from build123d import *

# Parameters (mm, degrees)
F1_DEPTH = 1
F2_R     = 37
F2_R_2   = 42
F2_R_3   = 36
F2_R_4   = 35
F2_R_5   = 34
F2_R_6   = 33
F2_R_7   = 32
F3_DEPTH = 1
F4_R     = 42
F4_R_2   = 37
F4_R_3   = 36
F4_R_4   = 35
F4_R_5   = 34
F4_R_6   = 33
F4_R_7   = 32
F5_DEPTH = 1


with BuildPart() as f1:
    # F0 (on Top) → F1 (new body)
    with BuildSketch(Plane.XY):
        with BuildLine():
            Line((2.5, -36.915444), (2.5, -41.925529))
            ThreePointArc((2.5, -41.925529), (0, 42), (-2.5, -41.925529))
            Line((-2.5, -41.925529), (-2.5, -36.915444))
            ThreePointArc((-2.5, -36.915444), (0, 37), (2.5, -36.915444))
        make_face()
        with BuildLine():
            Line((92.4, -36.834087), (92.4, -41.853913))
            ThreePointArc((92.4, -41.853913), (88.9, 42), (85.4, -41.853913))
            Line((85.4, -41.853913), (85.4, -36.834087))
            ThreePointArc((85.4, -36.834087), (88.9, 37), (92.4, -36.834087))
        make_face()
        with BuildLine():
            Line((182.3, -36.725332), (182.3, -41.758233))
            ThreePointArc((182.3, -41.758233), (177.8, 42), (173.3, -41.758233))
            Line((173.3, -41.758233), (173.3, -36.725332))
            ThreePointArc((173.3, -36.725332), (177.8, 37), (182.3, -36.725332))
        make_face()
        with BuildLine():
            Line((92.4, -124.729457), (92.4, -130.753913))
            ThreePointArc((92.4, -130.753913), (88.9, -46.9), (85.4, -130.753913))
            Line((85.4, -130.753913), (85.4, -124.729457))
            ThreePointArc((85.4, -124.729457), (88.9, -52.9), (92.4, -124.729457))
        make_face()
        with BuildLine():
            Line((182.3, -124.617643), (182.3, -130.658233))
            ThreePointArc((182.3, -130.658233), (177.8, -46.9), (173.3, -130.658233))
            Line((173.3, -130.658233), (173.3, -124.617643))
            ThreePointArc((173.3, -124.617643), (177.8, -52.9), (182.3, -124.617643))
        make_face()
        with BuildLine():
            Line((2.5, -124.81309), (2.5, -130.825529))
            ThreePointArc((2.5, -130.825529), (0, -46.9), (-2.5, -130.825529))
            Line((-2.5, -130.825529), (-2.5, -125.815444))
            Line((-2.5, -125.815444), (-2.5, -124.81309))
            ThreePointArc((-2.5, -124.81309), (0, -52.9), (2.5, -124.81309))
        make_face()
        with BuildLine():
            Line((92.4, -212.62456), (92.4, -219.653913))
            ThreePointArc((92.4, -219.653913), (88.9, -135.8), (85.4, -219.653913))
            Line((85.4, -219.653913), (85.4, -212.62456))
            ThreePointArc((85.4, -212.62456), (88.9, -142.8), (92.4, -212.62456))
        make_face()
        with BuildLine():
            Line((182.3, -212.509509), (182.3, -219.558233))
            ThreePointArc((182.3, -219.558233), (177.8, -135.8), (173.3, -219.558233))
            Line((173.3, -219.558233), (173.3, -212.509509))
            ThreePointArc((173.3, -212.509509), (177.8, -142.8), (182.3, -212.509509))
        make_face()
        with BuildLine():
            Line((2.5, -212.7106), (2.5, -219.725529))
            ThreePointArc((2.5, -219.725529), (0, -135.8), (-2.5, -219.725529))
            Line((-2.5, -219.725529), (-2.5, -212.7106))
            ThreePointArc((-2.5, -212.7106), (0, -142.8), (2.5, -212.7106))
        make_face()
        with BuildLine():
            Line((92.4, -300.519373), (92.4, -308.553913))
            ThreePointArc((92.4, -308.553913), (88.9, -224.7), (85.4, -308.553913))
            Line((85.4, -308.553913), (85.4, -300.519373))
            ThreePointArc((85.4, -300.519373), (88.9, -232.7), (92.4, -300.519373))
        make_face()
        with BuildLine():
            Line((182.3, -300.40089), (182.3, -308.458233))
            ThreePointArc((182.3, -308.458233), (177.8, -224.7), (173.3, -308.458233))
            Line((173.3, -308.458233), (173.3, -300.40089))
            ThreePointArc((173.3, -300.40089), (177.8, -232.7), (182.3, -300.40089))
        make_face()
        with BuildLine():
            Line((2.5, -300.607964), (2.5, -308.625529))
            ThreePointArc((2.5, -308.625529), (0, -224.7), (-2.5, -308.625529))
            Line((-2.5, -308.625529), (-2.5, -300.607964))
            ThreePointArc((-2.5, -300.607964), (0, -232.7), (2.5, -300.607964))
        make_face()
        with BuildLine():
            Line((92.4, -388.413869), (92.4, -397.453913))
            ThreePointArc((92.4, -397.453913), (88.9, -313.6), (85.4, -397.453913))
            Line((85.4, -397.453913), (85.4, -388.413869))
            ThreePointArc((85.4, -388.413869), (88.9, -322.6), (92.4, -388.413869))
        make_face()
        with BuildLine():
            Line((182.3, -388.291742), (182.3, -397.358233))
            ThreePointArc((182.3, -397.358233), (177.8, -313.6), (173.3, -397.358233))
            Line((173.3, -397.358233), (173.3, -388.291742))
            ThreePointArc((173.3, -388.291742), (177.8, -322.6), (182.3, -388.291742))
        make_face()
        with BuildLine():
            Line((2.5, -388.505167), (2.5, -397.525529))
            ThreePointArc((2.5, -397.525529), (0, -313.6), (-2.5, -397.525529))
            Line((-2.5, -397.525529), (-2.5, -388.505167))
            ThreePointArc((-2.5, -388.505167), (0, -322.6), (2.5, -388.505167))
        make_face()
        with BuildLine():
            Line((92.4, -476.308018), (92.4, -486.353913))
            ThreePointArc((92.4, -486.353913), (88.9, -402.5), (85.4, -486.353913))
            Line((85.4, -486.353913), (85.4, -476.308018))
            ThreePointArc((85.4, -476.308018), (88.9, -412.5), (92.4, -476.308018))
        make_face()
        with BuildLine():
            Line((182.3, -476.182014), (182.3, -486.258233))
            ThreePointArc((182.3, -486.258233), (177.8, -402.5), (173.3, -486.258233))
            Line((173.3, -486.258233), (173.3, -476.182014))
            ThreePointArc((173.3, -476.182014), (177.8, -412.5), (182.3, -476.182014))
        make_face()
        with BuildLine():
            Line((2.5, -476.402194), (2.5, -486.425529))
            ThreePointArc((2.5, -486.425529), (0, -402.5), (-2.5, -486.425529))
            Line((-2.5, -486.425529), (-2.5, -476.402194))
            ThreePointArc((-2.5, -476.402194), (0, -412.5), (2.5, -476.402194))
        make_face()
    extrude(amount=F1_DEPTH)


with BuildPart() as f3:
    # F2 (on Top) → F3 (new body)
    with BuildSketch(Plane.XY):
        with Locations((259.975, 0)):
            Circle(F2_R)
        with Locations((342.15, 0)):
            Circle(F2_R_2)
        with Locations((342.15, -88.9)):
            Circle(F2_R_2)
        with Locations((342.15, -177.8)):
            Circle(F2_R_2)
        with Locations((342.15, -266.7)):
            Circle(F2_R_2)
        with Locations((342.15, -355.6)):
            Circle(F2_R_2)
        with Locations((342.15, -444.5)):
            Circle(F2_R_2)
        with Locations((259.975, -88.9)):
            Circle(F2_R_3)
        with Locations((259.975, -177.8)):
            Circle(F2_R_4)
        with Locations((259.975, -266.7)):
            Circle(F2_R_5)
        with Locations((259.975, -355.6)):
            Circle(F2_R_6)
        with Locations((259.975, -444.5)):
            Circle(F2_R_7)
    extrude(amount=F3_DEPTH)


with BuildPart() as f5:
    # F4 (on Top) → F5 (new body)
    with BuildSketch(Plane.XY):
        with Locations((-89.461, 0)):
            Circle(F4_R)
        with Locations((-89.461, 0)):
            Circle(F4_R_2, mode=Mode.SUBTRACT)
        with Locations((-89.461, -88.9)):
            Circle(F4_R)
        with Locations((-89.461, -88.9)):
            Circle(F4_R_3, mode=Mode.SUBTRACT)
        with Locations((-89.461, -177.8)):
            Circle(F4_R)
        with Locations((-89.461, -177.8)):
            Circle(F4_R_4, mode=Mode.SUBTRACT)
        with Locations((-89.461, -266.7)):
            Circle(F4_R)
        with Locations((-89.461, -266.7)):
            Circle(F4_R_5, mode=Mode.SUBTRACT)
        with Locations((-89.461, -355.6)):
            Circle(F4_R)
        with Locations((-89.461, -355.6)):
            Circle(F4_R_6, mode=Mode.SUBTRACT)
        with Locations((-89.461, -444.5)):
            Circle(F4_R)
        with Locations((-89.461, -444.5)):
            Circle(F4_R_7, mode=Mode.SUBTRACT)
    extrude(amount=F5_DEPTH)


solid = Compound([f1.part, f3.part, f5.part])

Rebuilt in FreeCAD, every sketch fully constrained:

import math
import FreeCAD as App
import Part
import Sketcher

V = App.Vector

doc = App.newDocument("Part")
params = doc.addObject("Spreadsheet::Sheet", "Params")
for row, (alias, value) in enumerate([
    ("sketch1_radius", "42 mm"),
    ("sketch1_radius2", "37 mm"),
    ("sketch1_radius3", "36 mm"),
    ("sketch1_radius4", "35 mm"),
    ("sketch1_radius5", "34 mm"),
    ("pad1_length", "1 mm"),
    ("sketch2_diameter", "74 mm"),
    ("sketch2_diameter2", "84 mm"),
    ("sketch2_diameter3", "72 mm"),
    ("sketch2_diameter4", "70 mm"),
    ("sketch2_diameter5", "68 mm"),
    ("pad2_length", "1 mm"),
    ("sketch3_diameter", "84 mm"),
    ("sketch3_diameter2", "74 mm"),
    ("sketch3_diameter3", "72 mm"),
    ("sketch3_diameter4", "70 mm"),
    ("sketch3_diameter5", "68 mm"),
    ("pad3_length", "1 mm"),
], start=1):
    params.set(f"A{row}", alias)
    params.set(f"B{row}", "=" + value)
    params.setAlias(f"B{row}", alias)

body = doc.addObject("PartDesign::Body", "Body")
body.AllowCompound = True

# Sketch on XY plane
sketch1 = body.newObject("Sketcher::SketchObject", "Sketch")
sketch1.AttachmentSupport = (doc.getObject("XY_Plane"), [""])
sketch1.MapMode = "FlatFace"
sketch1.addGeometry(Part.LineSegment(V(2, -37, 0), V(2, -42, 0)), False)
sketch1.addGeometry(Part.ArcOfCircle(Part.Circle(V(0, 0, 0), V(0, 0, 1), 42), math.radians(-87), math.radians(267)), False)
sketch1.addGeometry(Part.LineSegment(V(-2, -42, 0), V(-2, -37, 0)), False)
sketch1.addGeometry(Part.ArcOfCircle(Part.Circle(V(0, 0, 0), V(0, 0, 1), 37), math.radians(-86), math.radians(266)), False)
sketch1.addGeometry(Part.LineSegment(V(92, -37, 0), V(92, -42, 0)), False)
sketch1.addGeometry(Part.ArcOfCircle(Part.Circle(V(89, 0, 0), V(0, 0, 1), 42), math.radians(-85), math.radians(265)), False)
sketch1.addGeometry(Part.LineSegment(V(85, -42, 0), V(85, -37, 0)), False)
sketch1.addGeometry(Part.ArcOfCircle(Part.Circle(V(89, 0, 0), V(0, 0, 1), 37), math.radians(-85), math.radians(265)), False)
sketch1.addGeometry(Part.LineSegment(V(182, -37, 0), V(182, -42, 0)), False)
sketch1.addGeometry(Part.ArcOfCircle(Part.Circle(V(178, 0, 0), V(0, 0, 1), 42), math.radians(-84), math.radians(264)), False)
sketch1.addGeometry(Part.LineSegment(V(173, -42, 0), V(173, -37, 0)), False)
sketch1.addGeometry(Part.ArcOfCircle(Part.Circle(V(178, 0, 0), V(0, 0, 1), 37), math.radians(-83), math.radians(263)), False)
sketch1.addGeometry(Part.LineSegment(V(92, -125, 0), V(92, -131, 0)), False)
sketch1.addGeometry(Part.ArcOfCircle(Part.Circle(V(89, -89, 0), V(0, 0, 1), 42), math.radians(-85), math.radians(265)), False)
sketch1.addGeometry(Part.LineSegment(V(85, -131, 0), V(85, -125, 0)), False)
sketch1.addGeometry(Part.ArcOfCircle(Part.Circle(V(89, -89, 0), V(0, 0, 1), 36), math.radians(-84), math.radians(264)), False)
sketch1.addGeometry(Part.LineSegment(V(182, -125, 0), V(182, -131, 0)), False)
sketch1.addGeometry(Part.ArcOfCircle(Part.Circle(V(178, -89, 0), V(0, 0, 1), 42), math.radians(-84), math.radians(264)), False)
sketch1.addGeometry(Part.LineSegment(V(173, -131, 0), V(173, -125, 0)), False)
sketch1.addGeometry(Part.ArcOfCircle(Part.Circle(V(178, -89, 0), V(0, 0, 1), 36), math.radians(-83), math.radians(263)), False)
sketch1.addGeometry(Part.LineSegment(V(2, -125, 0), V(2, -131, 0)), False)
sketch1.addGeometry(Part.ArcOfCircle(Part.Circle(V(0, -89, 0), V(0, 0, 1), 42), math.radians(-87), math.radians(267)), False)
sketch1.addGeometry(Part.LineSegment(V(-2, -131, 0), V(-2, -125, 0)), False)
sketch1.addGeometry(Part.ArcOfCircle(Part.Circle(V(0, -89, 0), V(0, 0, 1), 36), math.radians(-86), math.radians(266)), False)
sketch1.addGeometry(Part.LineSegment(V(92, -213, 0), V(92, -220, 0)), False)
sketch1.addGeometry(Part.ArcOfCircle(Part.Circle(V(89, -178, 0), V(0, 0, 1), 42), math.radians(-85), math.radians(265)), False)
sketch1.addGeometry(Part.LineSegment(V(85, -220, 0), V(85, -213, 0)), False)
sketch1.addGeometry(Part.ArcOfCircle(Part.Circle(V(89, -178, 0), V(0, 0, 1), 35), math.radians(-84), math.radians(264)), False)
sketch1.addGeometry(Part.LineSegment(V(182, -213, 0), V(182, -220, 0)), False)
sketch1.addGeometry(Part.ArcOfCircle(Part.Circle(V(178, -178, 0), V(0, 0, 1), 42), math.radians(-84), math.radians(264)), False)
sketch1.addGeometry(Part.LineSegment(V(173, -220, 0), V(173, -213, 0)), False)
sketch1.addGeometry(Part.ArcOfCircle(Part.Circle(V(178, -178, 0), V(0, 0, 1), 35), math.radians(-83), math.radians(263)), False)
sketch1.addGeometry(Part.LineSegment(V(2, -213, 0), V(2, -220, 0)), False)
sketch1.addGeometry(Part.ArcOfCircle(Part.Circle(V(0, -178, 0), V(0, 0, 1), 42), math.radians(-87), math.radians(267)), False)
sketch1.addGeometry(Part.LineSegment(V(-2, -220, 0), V(-2, -213, 0)), False)
sketch1.addGeometry(Part.ArcOfCircle(Part.Circle(V(0, -178, 0), V(0, 0, 1), 35), math.radians(-86), math.radians(266)), False)
sketch1.addGeometry(Part.LineSegment(V(92, -301, 0), V(92, -309, 0)), False)
sketch1.addGeometry(Part.ArcOfCircle(Part.Circle(V(89, -267, 0), V(0, 0, 1), 42), math.radians(-85), math.radians(265)), False)
sketch1.addGeometry(Part.LineSegment(V(85, -309, 0), V(85, -301, 0)), False)
sketch1.addGeometry(Part.ArcOfCircle(Part.Circle(V(89, -267, 0), V(0, 0, 1), 34), math.radians(-84), math.radians(264)), False)
sketch1.addGeometry(Part.LineSegment(V(182, -300, 0), V(182, -308, 0)), False)
sketch1.addGeometry(Part.ArcOfCircle(Part.Circle(V(178, -267, 0), V(0, 0, 1), 42), math.radians(-84), math.radians(264)), False)
sketch1.addGeometry(Part.LineSegment(V(173, -308, 0), V(173, -300, 0)), False)
sketch1.addGeometry(Part.ArcOfCircle(Part.Circle(V(178, -267, 0), V(0, 0, 1), 34), math.radians(-82), math.radians(262)), False)
sketch1.addGeometry(Part.LineSegment(V(2, -301, 0), V(2, -309, 0)), False)
sketch1.addGeometry(Part.ArcOfCircle(Part.Circle(V(0, -267, 0), V(0, 0, 1), 42), math.radians(-87), math.radians(267)), False)
sketch1.addGeometry(Part.LineSegment(V(-2, -309, 0), V(-2, -301, 0)), False)
sketch1.addGeometry(Part.ArcOfCircle(Part.Circle(V(0, -267, 0), V(0, 0, 1), 34), math.radians(-86), math.radians(266)), False)
sketch1.addGeometry(Part.LineSegment(V(92, -388, 0), V(92, -397, 0)), False)
sketch1.addGeometry(Part.ArcOfCircle(Part.Circle(V(89, -356, 0), V(0, 0, 1), 42), math.radians(-85), math.radians(265)), False)
sketch1.addGeometry(Part.LineSegment(V(85, -397, 0), V(85, -388, 0)), False)
sketch1.addGeometry(Part.ArcOfCircle(Part.Circle(V(89, -356, 0), V(0, 0, 1), 33), math.radians(-84), math.radians(264)), False)
sketch1.addGeometry(Part.LineSegment(V(182, -388, 0), V(182, -397, 0)), False)
sketch1.addGeometry(Part.ArcOfCircle(Part.Circle(V(178, -356, 0), V(0, 0, 1), 42), math.radians(-84), math.radians(264)), False)
sketch1.addGeometry(Part.LineSegment(V(173, -397, 0), V(173, -388, 0)), False)
sketch1.addGeometry(Part.ArcOfCircle(Part.Circle(V(178, -356, 0), V(0, 0, 1), 33), math.radians(-82), math.radians(262)), False)
sketch1.addGeometry(Part.LineSegment(V(2, -389, 0), V(2, -398, 0)), False)
sketch1.addGeometry(Part.ArcOfCircle(Part.Circle(V(0, -356, 0), V(0, 0, 1), 42), math.radians(-87), math.radians(267)), False)
sketch1.addGeometry(Part.LineSegment(V(-2, -398, 0), V(-2, -389, 0)), False)
sketch1.addGeometry(Part.ArcOfCircle(Part.Circle(V(0, -356, 0), V(0, 0, 1), 33), math.radians(-86), math.radians(266)), False)
sketch1.addGeometry(Part.LineSegment(V(92, -476, 0), V(92, -486, 0)), False)
sketch1.addGeometry(Part.ArcOfCircle(Part.Circle(V(89, -445, 0), V(0, 0, 1), 42), math.radians(-85), math.radians(265)), False)
sketch1.addGeometry(Part.LineSegment(V(85, -486, 0), V(85, -476, 0)), False)
sketch1.addGeometry(Part.ArcOfCircle(Part.Circle(V(89, -445, 0), V(0, 0, 1), 32), math.radians(-84), math.radians(264)), False)
sketch1.addGeometry(Part.LineSegment(V(182, -476, 0), V(182, -486, 0)), False)
sketch1.addGeometry(Part.ArcOfCircle(Part.Circle(V(178, -445, 0), V(0, 0, 1), 42), math.radians(-84), math.radians(264)), False)
sketch1.addGeometry(Part.LineSegment(V(173, -486, 0), V(173, -476, 0)), False)
sketch1.addGeometry(Part.ArcOfCircle(Part.Circle(V(178, -445, 0), V(0, 0, 1), 32), math.radians(-82), math.radians(262)), False)
sketch1.addGeometry(Part.LineSegment(V(2, -476, 0), V(2, -486, 0)), False)
sketch1.addGeometry(Part.ArcOfCircle(Part.Circle(V(0, -444, 0), V(0, 0, 1), 42), math.radians(-87), math.radians(267)), False)
sketch1.addGeometry(Part.LineSegment(V(-2, -486, 0), V(-2, -476, 0)), False)
sketch1.addGeometry(Part.ArcOfCircle(Part.Circle(V(0, -444, 0), V(0, 0, 1), 32), math.radians(-86), math.radians(266)), False)
sketch1.addConstraint(Sketcher.Constraint("Coincident", 0, 2, 1, 1))
sketch1.addConstraint(Sketcher.Constraint("Coincident", 1, 2, 2, 1))
sketch1.addConstraint(Sketcher.Constraint("Coincident", 2, 2, 3, 2))
sketch1.addConstraint(Sketcher.Constraint("Coincident", 3, 1, 0, 1))
sketch1.addConstraint(Sketcher.Constraint("Coincident", 4, 2, 5, 1))
sketch1.addConstraint(Sketcher.Constraint("Coincident", 5, 2, 6, 1))
sketch1.addConstraint(Sketcher.Constraint("Coincident", 6, 2, 7, 2))
sketch1.addConstraint(Sketcher.Constraint("Coincident", 7, 1, 4, 1))
sketch1.addConstraint(Sketcher.Constraint("Coincident", 8, 2, 9, 1))
sketch1.addConstraint(Sketcher.Constraint("Coincident", 9, 2, 10, 1))
sketch1.addConstraint(Sketcher.Constraint("Coincident", 10, 2, 11, 2))
sketch1.addConstraint(Sketcher.Constraint("Coincident", 11, 1, 8, 1))
sketch1.addConstraint(Sketcher.Constraint("Coincident", 12, 2, 13, 1))
sketch1.addConstraint(Sketcher.Constraint("Coincident", 13, 2, 14, 1))
sketch1.addConstraint(Sketcher.Constraint("Coincident", 14, 2, 15, 2))
sketch1.addConstraint(Sketcher.Constraint("Coincident", 15, 1, 12, 1))
sketch1.addConstraint(Sketcher.Constraint("Coincident", 16, 2, 17, 1))
sketch1.addConstraint(Sketcher.Constraint("Coincident", 17, 2, 18, 1))
sketch1.addConstraint(Sketcher.Constraint("Coincident", 18, 2, 19, 2))
sketch1.addConstraint(Sketcher.Constraint("Coincident", 19, 1, 16, 1))
sketch1.addConstraint(Sketcher.Constraint("Coincident", 20, 2, 21, 1))
sketch1.addConstraint(Sketcher.Constraint("Coincident", 21, 2, 22, 1))
sketch1.addConstraint(Sketcher.Constraint("Coincident", 22, 2, 23, 2))
sketch1.addConstraint(Sketcher.Constraint("Coincident", 23, 1, 20, 1))
sketch1.addConstraint(Sketcher.Constraint("Coincident", 24, 2, 25, 1))
sketch1.addConstraint(Sketcher.Constraint("Coincident", 25, 2, 26, 1))
sketch1.addConstraint(Sketcher.Constraint("Coincident", 26, 2, 27, 2))
sketch1.addConstraint(Sketcher.Constraint("Coincident", 27, 1, 24, 1))
sketch1.addConstraint(Sketcher.Constraint("Coincident", 28, 2, 29, 1))
sketch1.addConstraint(Sketcher.Constraint("Coincident", 29, 2, 30, 1))
sketch1.addConstraint(Sketcher.Constraint("Coincident", 30, 2, 31, 2))
sketch1.addConstraint(Sketcher.Constraint("Coincident", 31, 1, 28, 1))
sketch1.addConstraint(Sketcher.Constraint("Coincident", 32, 2, 33, 1))
sketch1.addConstraint(Sketcher.Constraint("Coincident", 33, 2, 34, 1))
sketch1.addConstraint(Sketcher.Constraint("Coincident", 34, 2, 35, 2))
sketch1.addConstraint(Sketcher.Constraint("Coincident", 35, 1, 32, 1))
sketch1.addConstraint(Sketcher.Constraint("Coincident", 36, 2, 37, 1))
sketch1.addConstraint(Sketcher.Constraint("Coincident", 37, 2, 38, 1))
sketch1.addConstraint(Sketcher.Constraint("Coincident", 38, 2, 39, 2))
sketch1.addConstraint(Sketcher.Constraint("Coincident", 39, 1, 36, 1))
sketch1.addConstraint(Sketcher.Constraint("Coincident", 40, 2, 41, 1))
sketch1.addConstraint(Sketcher.Constraint("Coincident", 41, 2, 42, 1))
sketch1.addConstraint(Sketcher.Constraint("Coincident", 42, 2, 43, 2))
sketch1.addConstraint(Sketcher.Constraint("Coincident", 43, 1, 40, 1))
sketch1.addConstraint(Sketcher.Constraint("Coincident", 44, 2, 45, 1))
sketch1.addConstraint(Sketcher.Constraint("Coincident", 45, 2, 46, 1))
sketch1.addConstraint(Sketcher.Constraint("Coincident", 46, 2, 47, 2))
sketch1.addConstraint(Sketcher.Constraint("Coincident", 47, 1, 44, 1))
sketch1.addConstraint(Sketcher.Constraint("Coincident", 48, 2, 49, 1))
sketch1.addConstraint(Sketcher.Constraint("Coincident", 49, 2, 50, 1))
sketch1.addConstraint(Sketcher.Constraint("Coincident", 50, 2, 51, 2))
sketch1.addConstraint(Sketcher.Constraint("Coincident", 51, 1, 48, 1))
sketch1.addConstraint(Sketcher.Constraint("Coincident", 52, 2, 53, 1))
sketch1.addConstraint(Sketcher.Constraint("Coincident", 53, 2, 54, 1))
sketch1.addConstraint(Sketcher.Constraint("Coincident", 54, 2, 55, 2))
sketch1.addConstraint(Sketcher.Constraint("Coincident", 55, 1, 52, 1))
sketch1.addConstraint(Sketcher.Constraint("Coincident", 56, 2, 57, 1))
sketch1.addConstraint(Sketcher.Constraint("Coincident", 57, 2, 58, 1))
sketch1.addConstraint(Sketcher.Constraint("Coincident", 58, 2, 59, 2))
sketch1.addConstraint(Sketcher.Constraint("Coincident", 59, 1, 56, 1))
sketch1.addConstraint(Sketcher.Constraint("Coincident", 60, 2, 61, 1))
sketch1.addConstraint(Sketcher.Constraint("Coincident", 61, 2, 62, 1))
sketch1.addConstraint(Sketcher.Constraint("Coincident", 62, 2, 63, 2))
sketch1.addConstraint(Sketcher.Constraint("Coincident", 63, 1, 60, 1))
sketch1.addConstraint(Sketcher.Constraint("Coincident", 64, 2, 65, 1))
sketch1.addConstraint(Sketcher.Constraint("Coincident", 65, 2, 66, 1))
sketch1.addConstraint(Sketcher.Constraint("Coincident", 66, 2, 67, 2))
sketch1.addConstraint(Sketcher.Constraint("Coincident", 67, 1, 64, 1))
sketch1.addConstraint(Sketcher.Constraint("Coincident", 68, 2, 69, 1))
sketch1.addConstraint(Sketcher.Constraint("Coincident", 69, 2, 70, 1))
sketch1.addConstraint(Sketcher.Constraint("Coincident", 70, 2, 71, 2))
sketch1.addConstraint(Sketcher.Constraint("Coincident", 71, 1, 68, 1))
sketch1.addConstraint(Sketcher.Constraint("Vertical", 0))
sketch1.addConstraint(Sketcher.Constraint("Vertical", 2))
sketch1.addConstraint(Sketcher.Constraint("Vertical", 4))
sketch1.addConstraint(Sketcher.Constraint("Vertical", 6))
sketch1.addConstraint(Sketcher.Constraint("Vertical", 8))
sketch1.addConstraint(Sketcher.Constraint("Vertical", 10))
sketch1.addConstraint(Sketcher.Constraint("Vertical", 12))
sketch1.addConstraint(Sketcher.Constraint("Vertical", 14))
sketch1.addConstraint(Sketcher.Constraint("Vertical", 16))
sketch1.addConstraint(Sketcher.Constraint("Vertical", 18))
sketch1.addConstraint(Sketcher.Constraint("Vertical", 20))
sketch1.addConstraint(Sketcher.Constraint("Vertical", 22))
sketch1.addConstraint(Sketcher.Constraint("Vertical", 24))
sketch1.addConstraint(Sketcher.Constraint("Vertical", 26))
sketch1.addConstraint(Sketcher.Constraint("Vertical", 28))
sketch1.addConstraint(Sketcher.Constraint("Vertical", 30))
sketch1.addConstraint(Sketcher.Constraint("Vertical", 32))
sketch1.addConstraint(Sketcher.Constraint("Vertical", 34))
sketch1.addConstraint(Sketcher.Constraint("Vertical", 36))
sketch1.addConstraint(Sketcher.Constraint("Vertical", 38))
sketch1.addConstraint(Sketcher.Constraint("Vertical", 40))
sketch1.addConstraint(Sketcher.Constraint("Vertical", 42))
sketch1.addConstraint(Sketcher.Constraint("Vertical", 44))
sketch1.addConstraint(Sketcher.Constraint("Vertical", 46))
sketch1.addConstraint(Sketcher.Constraint("Vertical", 48))
sketch1.addConstraint(Sketcher.Constraint("Vertical", 50))
sketch1.addConstraint(Sketcher.Constraint("Vertical", 52))
sketch1.addConstraint(Sketcher.Constraint("Vertical", 54))
sketch1.addConstraint(Sketcher.Constraint("Vertical", 56))
sketch1.addConstraint(Sketcher.Constraint("Vertical", 58))
sketch1.addConstraint(Sketcher.Constraint("Vertical", 60))
sketch1.addConstraint(Sketcher.Constraint("Vertical", 62))
sketch1.addConstraint(Sketcher.Constraint("Vertical", 64))
sketch1.addConstraint(Sketcher.Constraint("Vertical", 66))
sketch1.addConstraint(Sketcher.Constraint("Vertical", 68))
sketch1.addConstraint(Sketcher.Constraint("Vertical", 70))
sketch1.addConstraint(Sketcher.Constraint("Coincident", 1, 3, -1, 1))
sketch1.addConstraint(Sketcher.Constraint("Coincident", 3, 3, -1, 1))
sketch1.addConstraint(Sketcher.Constraint("Coincident", 7, 3, 5, 3))
sketch1.addConstraint(Sketcher.Constraint("Coincident", 11, 3, 9, 3))
sketch1.addConstraint(Sketcher.Constraint("Coincident", 15, 3, 13, 3))
sketch1.addConstraint(Sketcher.Constraint("Coincident", 19, 3, 17, 3))
sketch1.addConstraint(Sketcher.Constraint("Coincident", 23, 3, 21, 3))
sketch1.addConstraint(Sketcher.Constraint("Coincident", 27, 3, 25, 3))
sketch1.addConstraint(Sketcher.Constraint("Coincident", 31, 3, 29, 3))
sketch1.addConstraint(Sketcher.Constraint("Coincident", 35, 3, 33, 3))
sketch1.addConstraint(Sketcher.Constraint("Coincident", 39, 3, 37, 3))
sketch1.addConstraint(Sketcher.Constraint("Coincident", 43, 3, 41, 3))
sketch1.addConstraint(Sketcher.Constraint("Coincident", 47, 3, 45, 3))
sketch1.addConstraint(Sketcher.Constraint("Coincident", 51, 3, 49, 3))
sketch1.addConstraint(Sketcher.Constraint("Coincident", 55, 3, 53, 3))
sketch1.addConstraint(Sketcher.Constraint("Coincident", 59, 3, 57, 3))
sketch1.addConstraint(Sketcher.Constraint("Coincident", 63, 3, 61, 3))
sketch1.addConstraint(Sketcher.Constraint("Coincident", 67, 3, 65, 3))
sketch1.addConstraint(Sketcher.Constraint("Coincident", 71, 3, 69, 3))
sketch1.addConstraint(Sketcher.Constraint("Equal", 1, 5))
sketch1.addConstraint(Sketcher.Constraint("Equal", 3, 7))
sketch1.addConstraint(Sketcher.Constraint("Equal", 5, 9))
sketch1.addConstraint(Sketcher.Constraint("Equal", 7, 11))
sketch1.addConstraint(Sketcher.Constraint("Equal", 9, 13))
sketch1.addConstraint(Sketcher.Constraint("Equal", 13, 17))
sketch1.addConstraint(Sketcher.Constraint("Equal", 15, 19))
sketch1.addConstraint(Sketcher.Constraint("Equal", 17, 21))
sketch1.addConstraint(Sketcher.Constraint("Equal", 19, 23))
sketch1.addConstraint(Sketcher.Constraint("Equal", 21, 25))
sketch1.addConstraint(Sketcher.Constraint("Equal", 25, 29))
sketch1.addConstraint(Sketcher.Constraint("Equal", 27, 31))
sketch1.addConstraint(Sketcher.Constraint("Equal", 29, 33))
sketch1.addConstraint(Sketcher.Constraint("Equal", 31, 35))
sketch1.addConstraint(Sketcher.Constraint("Equal", 33, 37))
sketch1.addConstraint(Sketcher.Constraint("Equal", 37, 41))
sketch1.addConstraint(Sketcher.Constraint("Equal", 39, 43))
sketch1.addConstraint(Sketcher.Constraint("Equal", 41, 45))
sketch1.addConstraint(Sketcher.Constraint("Equal", 43, 47))
sketch1.addConstraint(Sketcher.Constraint("Equal", 45, 49))
sketch1.addConstraint(Sketcher.Constraint("Equal", 49, 53))
sketch1.addConstraint(Sketcher.Constraint("Equal", 51, 55))
sketch1.addConstraint(Sketcher.Constraint("Equal", 53, 57))
sketch1.addConstraint(Sketcher.Constraint("Equal", 55, 59))
sketch1.addConstraint(Sketcher.Constraint("Equal", 57, 61))
sketch1.addConstraint(Sketcher.Constraint("Equal", 61, 65))
sketch1.addConstraint(Sketcher.Constraint("Equal", 63, 67))
sketch1.addConstraint(Sketcher.Constraint("Equal", 65, 69))
sketch1.addConstraint(Sketcher.Constraint("Equal", 67, 71))
sketch1.addConstraint(Sketcher.Constraint("Symmetric", 20, 2, 21, 2, -2))
sketch1.addConstraint(Sketcher.Constraint("Symmetric", 32, 2, 33, 2, -2))
sketch1.addConstraint(Sketcher.Constraint("Symmetric", 44, 2, 45, 2, -2))
sketch1.addConstraint(Sketcher.Constraint("Symmetric", 56, 2, 57, 2, -2))
sketch1.addConstraint(Sketcher.Constraint("Symmetric", 68, 2, 69, 2, -2))
sketch1.addConstraint(Sketcher.Constraint("PointOnObject", 5, 3, -1))
sketch1.addConstraint(Sketcher.Constraint("PointOnObject", 9, 3, -1))
sketch1.addConstraint(Sketcher.Constraint("Horizontal", 15, 3, 17, 3))
sketch1.addConstraint(Sketcher.Constraint("Horizontal", 19, 3, 21, 3))
sketch1.addConstraint(Sketcher.Constraint("Horizontal", 27, 3, 29, 3))
sketch1.addConstraint(Sketcher.Constraint("Horizontal", 31, 3, 33, 3))
sketch1.addConstraint(Sketcher.Constraint("Horizontal", 39, 3, 41, 3))
sketch1.addConstraint(Sketcher.Constraint("Horizontal", 43, 3, 45, 3))
sketch1.addConstraint(Sketcher.Constraint("Horizontal", 51, 3, 53, 3))
sketch1.addConstraint(Sketcher.Constraint("Horizontal", 55, 3, 57, 3))
sketch1.addConstraint(Sketcher.Constraint("Horizontal", 63, 3, 65, 3))
sketch1.addConstraint(Sketcher.Constraint("Horizontal", 67, 3, 69, 3))
sketch1.addConstraint(Sketcher.Constraint("Horizontal", 0, 2, 1, 2))
sketch1.addConstraint(Sketcher.Constraint("Horizontal", 4, 2, 5, 2))
sketch1.addConstraint(Sketcher.Constraint("Horizontal", 8, 2, 9, 2))
sketch1.addConstraint(Sketcher.Constraint("Horizontal", 12, 2, 13, 2))
sketch1.addConstraint(Sketcher.Constraint("Horizontal", 16, 2, 17, 2))
sketch1.addConstraint(Sketcher.Constraint("Horizontal", 24, 2, 25, 2))
sketch1.addConstraint(Sketcher.Constraint("Horizontal", 28, 2, 29, 2))
sketch1.addConstraint(Sketcher.Constraint("Horizontal", 36, 2, 37, 2))
sketch1.addConstraint(Sketcher.Constraint("Horizontal", 40, 2, 41, 2))
sketch1.addConstraint(Sketcher.Constraint("Horizontal", 48, 2, 49, 2))
sketch1.addConstraint(Sketcher.Constraint("Horizontal", 52, 2, 53, 2))
sketch1.addConstraint(Sketcher.Constraint("Horizontal", 60, 2, 61, 2))
sketch1.addConstraint(Sketcher.Constraint("Horizontal", 64, 2, 65, 2))
sketch1.addConstraint(Sketcher.Constraint("Vertical", 7, 3, 13, 3))
sketch1.addConstraint(Sketcher.Constraint("Vertical", 11, 3, 17, 3))
sketch1.addConstraint(Sketcher.Constraint("Vertical", 15, 3, 25, 3))
sketch1.addConstraint(Sketcher.Constraint("Vertical", 19, 3, 29, 3))
sketch1.addConstraint(Sketcher.Constraint("Vertical", 27, 3, 37, 3))
sketch1.addConstraint(Sketcher.Constraint("Vertical", 31, 3, 41, 3))
sketch1.addConstraint(Sketcher.Constraint("Vertical", 39, 3, 49, 3))
sketch1.addConstraint(Sketcher.Constraint("Vertical", 43, 3, 53, 3))
sketch1.addConstraint(Sketcher.Constraint("Vertical", 51, 3, 61, 3))
sketch1.addConstraint(Sketcher.Constraint("Vertical", 55, 3, 65, 3))
sketch1.addConstraint(Sketcher.Constraint("Vertical", 7, 1, 12, 2))
sketch1.addConstraint(Sketcher.Constraint("Vertical", 11, 1, 16, 2))
sketch1.addConstraint(Sketcher.Constraint("Vertical", 3, 1, 20, 2))
sketch1.addConstraint(Sketcher.Constraint("Vertical", 15, 1, 24, 2))
sketch1.addConstraint(Sketcher.Constraint("Vertical", 19, 1, 28, 2))
sketch1.addConstraint(Sketcher.Constraint("Vertical", 23, 1, 32, 2))
sketch1.addConstraint(Sketcher.Constraint("Vertical", 27, 1, 36, 2))
sketch1.addConstraint(Sketcher.Constraint("Vertical", 31, 1, 40, 2))
sketch1.addConstraint(Sketcher.Constraint("Vertical", 35, 1, 44, 2))
sketch1.addConstraint(Sketcher.Constraint("Vertical", 39, 1, 48, 2))
sketch1.addConstraint(Sketcher.Constraint("Vertical", 43, 1, 52, 2))
sketch1.addConstraint(Sketcher.Constraint("Vertical", 47, 1, 56, 2))
sketch1.addConstraint(Sketcher.Constraint("Vertical", 51, 1, 60, 2))
sketch1.addConstraint(Sketcher.Constraint("Vertical", 55, 1, 64, 2))
sketch1.addConstraint(Sketcher.Constraint("Vertical", 59, 1, 68, 2))
sketch1.addConstraint(Sketcher.Constraint("Radius", 1, 42.0))
sketch1.addConstraint(Sketcher.Constraint("Radius", 3, 37.0))
sketch1.addConstraint(Sketcher.Constraint("Radius", 15, 36.0))
sketch1.addConstraint(Sketcher.Constraint("Radius", 27, 35.0))
sketch1.addConstraint(Sketcher.Constraint("Radius", 39, 34.0))
sketch1.addConstraint(Sketcher.Constraint("Radius", 51, 33.0))
sketch1.addConstraint(Sketcher.Constraint("Radius", 63, 32.0))
sketch1.addConstraint(Sketcher.Constraint("DistanceX", -1, 1, 5, 3, 88.9))
sketch1.addConstraint(Sketcher.Constraint("DistanceX", -1, 1, 9, 3, 177.8))
sketch1.addConstraint(Sketcher.Constraint("DistanceY", 13, 3, -1, 1, 88.9))
sketch1.addConstraint(Sketcher.Constraint("DistanceY", 25, 3, -1, 1, 177.8))
sketch1.addConstraint(Sketcher.Constraint("DistanceY", 37, 3, -1, 1, 266.7))
sketch1.addConstraint(Sketcher.Constraint("DistanceY", 49, 3, -1, 1, 355.6))
sketch1.addConstraint(Sketcher.Constraint("DistanceY", 61, 3, -1, 1, 444.5))
sketch1.addConstraint(Sketcher.Constraint("DistanceX", -1, 1, 0, 2, 2.5))
sketch1.addConstraint(Sketcher.Constraint("DistanceX", -1, 1, 4, 2, 92.4))
sketch1.addConstraint(Sketcher.Constraint("DistanceX", -1, 1, 8, 2, 182.3))
sketch1.setExpression("Constraints[211]", "Params.sketch1_radius")
sketch1.setExpression("Constraints[212]", "Params.sketch1_radius2")
sketch1.setExpression("Constraints[213]", "Params.sketch1_radius3")
sketch1.setExpression("Constraints[214]", "Params.sketch1_radius4")
sketch1.setExpression("Constraints[215]", "Params.sketch1_radius5")
pad1 = body.newObject("PartDesign::Pad", "Pad")
pad1.Profile = sketch1
pad1.setExpression("Length", "Params.pad1_length")
body2 = doc.addObject("PartDesign::Body", "Body001")
body2.AllowCompound = True

# Sketch on XY plane
sketch2 = body2.newObject("Sketcher::SketchObject", "Sketch001")
sketch2.AttachmentSupport = (doc.getObject("XY_Plane001"), [""])
sketch2.MapMode = "FlatFace"
sketch2.addGeometry(Part.Circle(V(260, 0, 0), V(0, 0, 1), 37), False)
sketch2.addGeometry(Part.Circle(V(342, 0, 0), V(0, 0, 1), 42), False)
sketch2.addGeometry(Part.Circle(V(342, -89, 0), V(0, 0, 1), 42), False)
sketch2.addGeometry(Part.Circle(V(342, -178, 0), V(0, 0, 1), 42), False)
sketch2.addGeometry(Part.Circle(V(342, -267, 0), V(0, 0, 1), 42), False)
sketch2.addGeometry(Part.Circle(V(342, -356, 0), V(0, 0, 1), 42), False)
sketch2.addGeometry(Part.Circle(V(342, -444, 0), V(0, 0, 1), 42), False)
sketch2.addGeometry(Part.Circle(V(260, -89, 0), V(0, 0, 1), 36), False)
sketch2.addGeometry(Part.Circle(V(260, -178, 0), V(0, 0, 1), 35), False)
sketch2.addGeometry(Part.Circle(V(260, -267, 0), V(0, 0, 1), 34), False)
sketch2.addGeometry(Part.Circle(V(260, -356, 0), V(0, 0, 1), 33), False)
sketch2.addGeometry(Part.Circle(V(260, -444, 0), V(0, 0, 1), 32), False)
sketch2.addConstraint(Sketcher.Constraint("Equal", 1, 2))
sketch2.addConstraint(Sketcher.Constraint("Equal", 2, 3))
sketch2.addConstraint(Sketcher.Constraint("Equal", 3, 4))
sketch2.addConstraint(Sketcher.Constraint("Equal", 4, 5))
sketch2.addConstraint(Sketcher.Constraint("Equal", 5, 6))
sketch2.addConstraint(Sketcher.Constraint("PointOnObject", 0, 3, -1))
sketch2.addConstraint(Sketcher.Constraint("PointOnObject", 1, 3, -1))
sketch2.addConstraint(Sketcher.Constraint("Horizontal", 2, 3, 7, 3))
sketch2.addConstraint(Sketcher.Constraint("Horizontal", 3, 3, 8, 3))
sketch2.addConstraint(Sketcher.Constraint("Horizontal", 4, 3, 9, 3))
sketch2.addConstraint(Sketcher.Constraint("Horizontal", 5, 3, 10, 3))
sketch2.addConstraint(Sketcher.Constraint("Horizontal", 6, 3, 11, 3))
sketch2.addConstraint(Sketcher.Constraint("Vertical", 1, 3, 2, 3))
sketch2.addConstraint(Sketcher.Constraint("Vertical", 2, 3, 3, 3))
sketch2.addConstraint(Sketcher.Constraint("Vertical", 3, 3, 4, 3))
sketch2.addConstraint(Sketcher.Constraint("Vertical", 4, 3, 5, 3))
sketch2.addConstraint(Sketcher.Constraint("Vertical", 5, 3, 6, 3))
sketch2.addConstraint(Sketcher.Constraint("Vertical", 0, 3, 7, 3))
sketch2.addConstraint(Sketcher.Constraint("Vertical", 7, 3, 8, 3))
sketch2.addConstraint(Sketcher.Constraint("Vertical", 8, 3, 9, 3))
sketch2.addConstraint(Sketcher.Constraint("Vertical", 9, 3, 10, 3))
sketch2.addConstraint(Sketcher.Constraint("Vertical", 10, 3, 11, 3))
sketch2.addConstraint(Sketcher.Constraint("Diameter", 0, 74.0))
sketch2.addConstraint(Sketcher.Constraint("Diameter", 1, 84.0))
sketch2.addConstraint(Sketcher.Constraint("Diameter", 7, 72.0))
sketch2.addConstraint(Sketcher.Constraint("Diameter", 8, 70.0))
sketch2.addConstraint(Sketcher.Constraint("Diameter", 9, 68.0))
sketch2.addConstraint(Sketcher.Constraint("Diameter", 10, 66.0))
sketch2.addConstraint(Sketcher.Constraint("Diameter", 11, 64.0))
sketch2.addConstraint(Sketcher.Constraint("DistanceY", 2, 3, -1, 1, 88.9))
sketch2.addConstraint(Sketcher.Constraint("DistanceY", 3, 3, -1, 1, 177.8))
sketch2.addConstraint(Sketcher.Constraint("DistanceY", 4, 3, -1, 1, 266.7))
sketch2.addConstraint(Sketcher.Constraint("DistanceY", 5, 3, -1, 1, 355.6))
sketch2.addConstraint(Sketcher.Constraint("DistanceY", 6, 3, -1, 1, 444.5))
sketch2.addConstraint(Sketcher.Constraint("DistanceX", -1, 1, 1, 3, 342.15))
sketch2.addConstraint(Sketcher.Constraint("DistanceX", -1, 1, 0, 3, 259.975))
sketch2.setExpression("Constraints[22]", "Params.sketch2_diameter")
sketch2.setExpression("Constraints[23]", "Params.sketch2_diameter2")
sketch2.setExpression("Constraints[24]", "Params.sketch2_diameter3")
sketch2.setExpression("Constraints[25]", "Params.sketch2_diameter4")
sketch2.setExpression("Constraints[26]", "Params.sketch2_diameter5")
pad2 = body2.newObject("PartDesign::Pad", "Pad001")
pad2.Profile = sketch2
pad2.setExpression("Length", "Params.pad2_length")
body3 = doc.addObject("PartDesign::Body", "Body002")
body3.AllowCompound = True

# Sketch on XY plane
sketch3 = body3.newObject("Sketcher::SketchObject", "Sketch002")
sketch3.AttachmentSupport = (doc.getObject("XY_Plane002"), [""])
sketch3.MapMode = "FlatFace"
sketch3.addGeometry(Part.Circle(V(-89, 0, 0), V(0, 0, 1), 42), False)
sketch3.addGeometry(Part.Circle(V(-89, 0, 0), V(0, 0, 1), 37), False)
sketch3.addGeometry(Part.Circle(V(-89, -89, 0), V(0, 0, 1), 42), False)
sketch3.addGeometry(Part.Circle(V(-89, -89, 0), V(0, 0, 1), 36), False)
sketch3.addGeometry(Part.Circle(V(-89, -178, 0), V(0, 0, 1), 42), False)
sketch3.addGeometry(Part.Circle(V(-89, -178, 0), V(0, 0, 1), 35), False)
sketch3.addGeometry(Part.Circle(V(-89, -267, 0), V(0, 0, 1), 42), False)
sketch3.addGeometry(Part.Circle(V(-89, -267, 0), V(0, 0, 1), 34), False)
sketch3.addGeometry(Part.Circle(V(-89, -356, 0), V(0, 0, 1), 42), False)
sketch3.addGeometry(Part.Circle(V(-89, -356, 0), V(0, 0, 1), 33), False)
sketch3.addGeometry(Part.Circle(V(-89, -444, 0), V(0, 0, 1), 42), False)
sketch3.addGeometry(Part.Circle(V(-89, -444, 0), V(0, 0, 1), 32), False)
sketch3.addConstraint(Sketcher.Constraint("Coincident", 1, 3, 0, 3))
sketch3.addConstraint(Sketcher.Constraint("Coincident", 3, 3, 2, 3))
sketch3.addConstraint(Sketcher.Constraint("Coincident", 5, 3, 4, 3))
sketch3.addConstraint(Sketcher.Constraint("Coincident", 7, 3, 6, 3))
sketch3.addConstraint(Sketcher.Constraint("Coincident", 9, 3, 8, 3))
sketch3.addConstraint(Sketcher.Constraint("Coincident", 11, 3, 10, 3))
sketch3.addConstraint(Sketcher.Constraint("Equal", 0, 2))
sketch3.addConstraint(Sketcher.Constraint("Equal", 2, 4))
sketch3.addConstraint(Sketcher.Constraint("Equal", 4, 6))
sketch3.addConstraint(Sketcher.Constraint("Equal", 6, 8))
sketch3.addConstraint(Sketcher.Constraint("Equal", 8, 10))
sketch3.addConstraint(Sketcher.Constraint("PointOnObject", 0, 3, -1))
sketch3.addConstraint(Sketcher.Constraint("Vertical", 1, 3, 2, 3))
sketch3.addConstraint(Sketcher.Constraint("Vertical", 3, 3, 4, 3))
sketch3.addConstraint(Sketcher.Constraint("Vertical", 5, 3, 6, 3))
sketch3.addConstraint(Sketcher.Constraint("Vertical", 7, 3, 8, 3))
sketch3.addConstraint(Sketcher.Constraint("Vertical", 9, 3, 10, 3))
sketch3.addConstraint(Sketcher.Constraint("Diameter", 0, 84.0))
sketch3.addConstraint(Sketcher.Constraint("Diameter", 1, 74.0))
sketch3.addConstraint(Sketcher.Constraint("Diameter", 3, 72.0))
sketch3.addConstraint(Sketcher.Constraint("Diameter", 5, 70.0))
sketch3.addConstraint(Sketcher.Constraint("Diameter", 7, 68.0))
sketch3.addConstraint(Sketcher.Constraint("Diameter", 9, 66.0))
sketch3.addConstraint(Sketcher.Constraint("Diameter", 11, 64.0))
sketch3.addConstraint(Sketcher.Constraint("DistanceY", 2, 3, -1, 1, 88.9))
sketch3.addConstraint(Sketcher.Constraint("DistanceY", 4, 3, -1, 1, 177.8))
sketch3.addConstraint(Sketcher.Constraint("DistanceY", 6, 3, -1, 1, 266.7))
sketch3.addConstraint(Sketcher.Constraint("DistanceY", 8, 3, -1, 1, 355.6))
sketch3.addConstraint(Sketcher.Constraint("DistanceY", 10, 3, -1, 1, 444.5))
sketch3.addConstraint(Sketcher.Constraint("DistanceX", 0, 3, -1, 1, 89.461))
sketch3.setExpression("Constraints[17]", "Params.sketch3_diameter")
sketch3.setExpression("Constraints[18]", "Params.sketch3_diameter2")
sketch3.setExpression("Constraints[19]", "Params.sketch3_diameter3")
sketch3.setExpression("Constraints[20]", "Params.sketch3_diameter4")
sketch3.setExpression("Constraints[21]", "Params.sketch3_diameter5")
pad3 = body3.newObject("PartDesign::Pad", "Pad002")
pad3.Profile = sketch3
pad3.setExpression("Length", "Params.pad3_length")

doc.recompute()
